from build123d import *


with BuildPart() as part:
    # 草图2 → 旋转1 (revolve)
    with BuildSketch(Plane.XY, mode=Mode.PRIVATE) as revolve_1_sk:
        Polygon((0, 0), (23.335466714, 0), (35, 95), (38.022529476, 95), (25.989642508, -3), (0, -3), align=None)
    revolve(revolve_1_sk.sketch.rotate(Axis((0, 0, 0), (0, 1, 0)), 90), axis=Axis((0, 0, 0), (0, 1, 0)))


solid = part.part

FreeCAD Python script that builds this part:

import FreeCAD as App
import Part
import Sketcher
from FreeCAD import Vector
Q = App.Units.Quantity


def add_polygon(sketch, points):
    """Adds a closed chain of lines whose ends are joined by coincident constraints."""
    first, n = sketch.GeometryCount, len(points)
    for a, b in zip(points, points[1:] + points[:1]):
        sketch.addGeometry(Part.LineSegment(App.Vector(*a, 0), App.Vector(*b, 0)), False)
    for i in range(n):
        sketch.addConstraint(Sketcher.Constraint("Coincident", first + i, 2, first + (i + 1) % n, 1))

doc = App.newDocument("Part")
body = doc.addObject("PartDesign::Body", "Body")

# Sketch on XY plane
sketch1 = body.newObject("Sketcher::SketchObject", "Sketch")
sketch1.AttachmentSupport = (doc.getObject("XY_Plane"), [""])
sketch1.MapMode = "FlatFace"
add_polygon(sketch1, [(23.335467, 0), (0, 0), (0, -3), (25.989643, -3), (38.022529, 95), (35, 95)])  # lines 0-5
sketch1.addConstraint([
    Sketcher.Constraint("Horizontal", 0),
    Sketcher.Constraint("Vertical", 1),
    Sketcher.Constraint("Horizontal", 2),
    Sketcher.Constraint("Horizontal", 4),
    Sketcher.Constraint("Coincident", 0, 2, -1, 1),
    Sketcher.Constraint("Parallel", 3, 5),
    Sketcher.Constraint("DistanceY", 1, 2, 1, 1, Q("3 mm")),
    Sketcher.Constraint("Angle", 3, Q("83 deg")),
    Sketcher.Constraint("DistanceY", -1, 1, 3, 2, Q("95 mm")),
    Sketcher.Constraint("DistanceX", -1, 1, 4, 2, Q("35 mm")),
    Sketcher.Constraint("DistanceX", 4, 2, 4, 1, Q("3.022529 mm")),
])
revolution = body.newObject("PartDesign::Revolution", "Revolution")
revolution.Profile = sketch1
revolution.ReferenceAxis = (sketch1, ["V_Axis"])
revolution.Angle = 360

doc.recompute()
